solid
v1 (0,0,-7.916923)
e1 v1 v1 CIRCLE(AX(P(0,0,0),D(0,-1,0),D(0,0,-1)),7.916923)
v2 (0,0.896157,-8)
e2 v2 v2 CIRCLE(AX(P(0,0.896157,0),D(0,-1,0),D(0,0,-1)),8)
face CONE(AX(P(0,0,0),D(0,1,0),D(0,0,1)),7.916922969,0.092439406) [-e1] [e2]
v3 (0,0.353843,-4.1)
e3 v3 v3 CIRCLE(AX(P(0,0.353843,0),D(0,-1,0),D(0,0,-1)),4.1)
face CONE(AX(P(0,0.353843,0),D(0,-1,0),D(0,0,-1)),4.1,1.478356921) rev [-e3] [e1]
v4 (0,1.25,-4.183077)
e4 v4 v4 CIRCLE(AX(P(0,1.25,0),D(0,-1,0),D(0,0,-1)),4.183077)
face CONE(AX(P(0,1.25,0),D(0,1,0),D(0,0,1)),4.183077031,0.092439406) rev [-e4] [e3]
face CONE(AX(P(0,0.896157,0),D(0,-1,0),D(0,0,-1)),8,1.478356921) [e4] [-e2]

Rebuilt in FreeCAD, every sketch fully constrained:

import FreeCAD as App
import Part
import Sketcher

V = App.Vector
Q = App.Units.Quantity


def add_polygon(sketch, points):
    """Adds a closed chain of lines whose ends are joined by coincident constraints."""
    first, n = sketch.GeometryCount, len(points)
    for a, b in zip(points, points[1:] + points[:1]):
        sketch.addGeometry(Part.LineSegment(App.Vector(*a, 0), App.Vector(*b, 0)), False)
    for i in range(n):
        sketch.addConstraint(Sketcher.Constraint("Coincident", first + i, 2, first + (i + 1) % n, 1))

doc = App.newDocument("Part")
params = doc.addObject("Spreadsheet::Sheet", "Params")
for row, (alias, value) in enumerate([
    ("sketch1_length", "0.9 mm"),
    ("revolution_angle", "360 deg"),
], start=1):
    params.set(f"A{row}", alias)
    params.set(f"B{row}", "=" + value)
    params.setAlias(f"B{row}", alias)

body = doc.addObject("PartDesign::Body", "Body")

# Sketch on XY plane
sketch1 = body.newObject("Sketcher::SketchObject", "Sketch")
sketch1.AttachmentSupport = (doc.getObject("XY_Plane"), [""])
sketch1.MapMode = "FlatFace"
add_polygon(sketch1, [(4.1, 0.353843), (7.916923, 0), (8, 0.896157), (4.183077, 1.25)])  # lines 0-3
sketch1.addConstraint(Sketcher.Constraint("PointOnObject", 0, 2, -1))
sketch1.addConstraint(Sketcher.Constraint("Perpendicular", 0, 1))
sketch1.addConstraint(Sketcher.Constraint("Perpendicular", 1, 2))
sketch1.addConstraint(Sketcher.Constraint("Perpendicular", 2, 3))
sketch1.addConstraint(Sketcher.Constraint("DistanceX", -1, 1, 1, 2, Q("8 mm")))
sketch1.addConstraint(Sketcher.Constraint("Distance", 1, Q("0.9 mm")))
sketch1.addConstraint(Sketcher.Constraint("DistanceX", -1, 1, 3, 2, Q("4.1 mm")))
sketch1.addConstraint(Sketcher.Constraint("DistanceY", -1, 1, 2, 2, Q("1.25 mm")))
sketch1.setExpression("Constraints[9]", "Params.sketch1_length")
revolution = body.newObject("PartDesign::Revolution", "Revolution")
revolution.Profile = sketch1
revolution.ReferenceAxis = (sketch1, ["V_Axis"])
revolution.setExpression("Angle", "Params.revolution_angle")

doc.recompute()
